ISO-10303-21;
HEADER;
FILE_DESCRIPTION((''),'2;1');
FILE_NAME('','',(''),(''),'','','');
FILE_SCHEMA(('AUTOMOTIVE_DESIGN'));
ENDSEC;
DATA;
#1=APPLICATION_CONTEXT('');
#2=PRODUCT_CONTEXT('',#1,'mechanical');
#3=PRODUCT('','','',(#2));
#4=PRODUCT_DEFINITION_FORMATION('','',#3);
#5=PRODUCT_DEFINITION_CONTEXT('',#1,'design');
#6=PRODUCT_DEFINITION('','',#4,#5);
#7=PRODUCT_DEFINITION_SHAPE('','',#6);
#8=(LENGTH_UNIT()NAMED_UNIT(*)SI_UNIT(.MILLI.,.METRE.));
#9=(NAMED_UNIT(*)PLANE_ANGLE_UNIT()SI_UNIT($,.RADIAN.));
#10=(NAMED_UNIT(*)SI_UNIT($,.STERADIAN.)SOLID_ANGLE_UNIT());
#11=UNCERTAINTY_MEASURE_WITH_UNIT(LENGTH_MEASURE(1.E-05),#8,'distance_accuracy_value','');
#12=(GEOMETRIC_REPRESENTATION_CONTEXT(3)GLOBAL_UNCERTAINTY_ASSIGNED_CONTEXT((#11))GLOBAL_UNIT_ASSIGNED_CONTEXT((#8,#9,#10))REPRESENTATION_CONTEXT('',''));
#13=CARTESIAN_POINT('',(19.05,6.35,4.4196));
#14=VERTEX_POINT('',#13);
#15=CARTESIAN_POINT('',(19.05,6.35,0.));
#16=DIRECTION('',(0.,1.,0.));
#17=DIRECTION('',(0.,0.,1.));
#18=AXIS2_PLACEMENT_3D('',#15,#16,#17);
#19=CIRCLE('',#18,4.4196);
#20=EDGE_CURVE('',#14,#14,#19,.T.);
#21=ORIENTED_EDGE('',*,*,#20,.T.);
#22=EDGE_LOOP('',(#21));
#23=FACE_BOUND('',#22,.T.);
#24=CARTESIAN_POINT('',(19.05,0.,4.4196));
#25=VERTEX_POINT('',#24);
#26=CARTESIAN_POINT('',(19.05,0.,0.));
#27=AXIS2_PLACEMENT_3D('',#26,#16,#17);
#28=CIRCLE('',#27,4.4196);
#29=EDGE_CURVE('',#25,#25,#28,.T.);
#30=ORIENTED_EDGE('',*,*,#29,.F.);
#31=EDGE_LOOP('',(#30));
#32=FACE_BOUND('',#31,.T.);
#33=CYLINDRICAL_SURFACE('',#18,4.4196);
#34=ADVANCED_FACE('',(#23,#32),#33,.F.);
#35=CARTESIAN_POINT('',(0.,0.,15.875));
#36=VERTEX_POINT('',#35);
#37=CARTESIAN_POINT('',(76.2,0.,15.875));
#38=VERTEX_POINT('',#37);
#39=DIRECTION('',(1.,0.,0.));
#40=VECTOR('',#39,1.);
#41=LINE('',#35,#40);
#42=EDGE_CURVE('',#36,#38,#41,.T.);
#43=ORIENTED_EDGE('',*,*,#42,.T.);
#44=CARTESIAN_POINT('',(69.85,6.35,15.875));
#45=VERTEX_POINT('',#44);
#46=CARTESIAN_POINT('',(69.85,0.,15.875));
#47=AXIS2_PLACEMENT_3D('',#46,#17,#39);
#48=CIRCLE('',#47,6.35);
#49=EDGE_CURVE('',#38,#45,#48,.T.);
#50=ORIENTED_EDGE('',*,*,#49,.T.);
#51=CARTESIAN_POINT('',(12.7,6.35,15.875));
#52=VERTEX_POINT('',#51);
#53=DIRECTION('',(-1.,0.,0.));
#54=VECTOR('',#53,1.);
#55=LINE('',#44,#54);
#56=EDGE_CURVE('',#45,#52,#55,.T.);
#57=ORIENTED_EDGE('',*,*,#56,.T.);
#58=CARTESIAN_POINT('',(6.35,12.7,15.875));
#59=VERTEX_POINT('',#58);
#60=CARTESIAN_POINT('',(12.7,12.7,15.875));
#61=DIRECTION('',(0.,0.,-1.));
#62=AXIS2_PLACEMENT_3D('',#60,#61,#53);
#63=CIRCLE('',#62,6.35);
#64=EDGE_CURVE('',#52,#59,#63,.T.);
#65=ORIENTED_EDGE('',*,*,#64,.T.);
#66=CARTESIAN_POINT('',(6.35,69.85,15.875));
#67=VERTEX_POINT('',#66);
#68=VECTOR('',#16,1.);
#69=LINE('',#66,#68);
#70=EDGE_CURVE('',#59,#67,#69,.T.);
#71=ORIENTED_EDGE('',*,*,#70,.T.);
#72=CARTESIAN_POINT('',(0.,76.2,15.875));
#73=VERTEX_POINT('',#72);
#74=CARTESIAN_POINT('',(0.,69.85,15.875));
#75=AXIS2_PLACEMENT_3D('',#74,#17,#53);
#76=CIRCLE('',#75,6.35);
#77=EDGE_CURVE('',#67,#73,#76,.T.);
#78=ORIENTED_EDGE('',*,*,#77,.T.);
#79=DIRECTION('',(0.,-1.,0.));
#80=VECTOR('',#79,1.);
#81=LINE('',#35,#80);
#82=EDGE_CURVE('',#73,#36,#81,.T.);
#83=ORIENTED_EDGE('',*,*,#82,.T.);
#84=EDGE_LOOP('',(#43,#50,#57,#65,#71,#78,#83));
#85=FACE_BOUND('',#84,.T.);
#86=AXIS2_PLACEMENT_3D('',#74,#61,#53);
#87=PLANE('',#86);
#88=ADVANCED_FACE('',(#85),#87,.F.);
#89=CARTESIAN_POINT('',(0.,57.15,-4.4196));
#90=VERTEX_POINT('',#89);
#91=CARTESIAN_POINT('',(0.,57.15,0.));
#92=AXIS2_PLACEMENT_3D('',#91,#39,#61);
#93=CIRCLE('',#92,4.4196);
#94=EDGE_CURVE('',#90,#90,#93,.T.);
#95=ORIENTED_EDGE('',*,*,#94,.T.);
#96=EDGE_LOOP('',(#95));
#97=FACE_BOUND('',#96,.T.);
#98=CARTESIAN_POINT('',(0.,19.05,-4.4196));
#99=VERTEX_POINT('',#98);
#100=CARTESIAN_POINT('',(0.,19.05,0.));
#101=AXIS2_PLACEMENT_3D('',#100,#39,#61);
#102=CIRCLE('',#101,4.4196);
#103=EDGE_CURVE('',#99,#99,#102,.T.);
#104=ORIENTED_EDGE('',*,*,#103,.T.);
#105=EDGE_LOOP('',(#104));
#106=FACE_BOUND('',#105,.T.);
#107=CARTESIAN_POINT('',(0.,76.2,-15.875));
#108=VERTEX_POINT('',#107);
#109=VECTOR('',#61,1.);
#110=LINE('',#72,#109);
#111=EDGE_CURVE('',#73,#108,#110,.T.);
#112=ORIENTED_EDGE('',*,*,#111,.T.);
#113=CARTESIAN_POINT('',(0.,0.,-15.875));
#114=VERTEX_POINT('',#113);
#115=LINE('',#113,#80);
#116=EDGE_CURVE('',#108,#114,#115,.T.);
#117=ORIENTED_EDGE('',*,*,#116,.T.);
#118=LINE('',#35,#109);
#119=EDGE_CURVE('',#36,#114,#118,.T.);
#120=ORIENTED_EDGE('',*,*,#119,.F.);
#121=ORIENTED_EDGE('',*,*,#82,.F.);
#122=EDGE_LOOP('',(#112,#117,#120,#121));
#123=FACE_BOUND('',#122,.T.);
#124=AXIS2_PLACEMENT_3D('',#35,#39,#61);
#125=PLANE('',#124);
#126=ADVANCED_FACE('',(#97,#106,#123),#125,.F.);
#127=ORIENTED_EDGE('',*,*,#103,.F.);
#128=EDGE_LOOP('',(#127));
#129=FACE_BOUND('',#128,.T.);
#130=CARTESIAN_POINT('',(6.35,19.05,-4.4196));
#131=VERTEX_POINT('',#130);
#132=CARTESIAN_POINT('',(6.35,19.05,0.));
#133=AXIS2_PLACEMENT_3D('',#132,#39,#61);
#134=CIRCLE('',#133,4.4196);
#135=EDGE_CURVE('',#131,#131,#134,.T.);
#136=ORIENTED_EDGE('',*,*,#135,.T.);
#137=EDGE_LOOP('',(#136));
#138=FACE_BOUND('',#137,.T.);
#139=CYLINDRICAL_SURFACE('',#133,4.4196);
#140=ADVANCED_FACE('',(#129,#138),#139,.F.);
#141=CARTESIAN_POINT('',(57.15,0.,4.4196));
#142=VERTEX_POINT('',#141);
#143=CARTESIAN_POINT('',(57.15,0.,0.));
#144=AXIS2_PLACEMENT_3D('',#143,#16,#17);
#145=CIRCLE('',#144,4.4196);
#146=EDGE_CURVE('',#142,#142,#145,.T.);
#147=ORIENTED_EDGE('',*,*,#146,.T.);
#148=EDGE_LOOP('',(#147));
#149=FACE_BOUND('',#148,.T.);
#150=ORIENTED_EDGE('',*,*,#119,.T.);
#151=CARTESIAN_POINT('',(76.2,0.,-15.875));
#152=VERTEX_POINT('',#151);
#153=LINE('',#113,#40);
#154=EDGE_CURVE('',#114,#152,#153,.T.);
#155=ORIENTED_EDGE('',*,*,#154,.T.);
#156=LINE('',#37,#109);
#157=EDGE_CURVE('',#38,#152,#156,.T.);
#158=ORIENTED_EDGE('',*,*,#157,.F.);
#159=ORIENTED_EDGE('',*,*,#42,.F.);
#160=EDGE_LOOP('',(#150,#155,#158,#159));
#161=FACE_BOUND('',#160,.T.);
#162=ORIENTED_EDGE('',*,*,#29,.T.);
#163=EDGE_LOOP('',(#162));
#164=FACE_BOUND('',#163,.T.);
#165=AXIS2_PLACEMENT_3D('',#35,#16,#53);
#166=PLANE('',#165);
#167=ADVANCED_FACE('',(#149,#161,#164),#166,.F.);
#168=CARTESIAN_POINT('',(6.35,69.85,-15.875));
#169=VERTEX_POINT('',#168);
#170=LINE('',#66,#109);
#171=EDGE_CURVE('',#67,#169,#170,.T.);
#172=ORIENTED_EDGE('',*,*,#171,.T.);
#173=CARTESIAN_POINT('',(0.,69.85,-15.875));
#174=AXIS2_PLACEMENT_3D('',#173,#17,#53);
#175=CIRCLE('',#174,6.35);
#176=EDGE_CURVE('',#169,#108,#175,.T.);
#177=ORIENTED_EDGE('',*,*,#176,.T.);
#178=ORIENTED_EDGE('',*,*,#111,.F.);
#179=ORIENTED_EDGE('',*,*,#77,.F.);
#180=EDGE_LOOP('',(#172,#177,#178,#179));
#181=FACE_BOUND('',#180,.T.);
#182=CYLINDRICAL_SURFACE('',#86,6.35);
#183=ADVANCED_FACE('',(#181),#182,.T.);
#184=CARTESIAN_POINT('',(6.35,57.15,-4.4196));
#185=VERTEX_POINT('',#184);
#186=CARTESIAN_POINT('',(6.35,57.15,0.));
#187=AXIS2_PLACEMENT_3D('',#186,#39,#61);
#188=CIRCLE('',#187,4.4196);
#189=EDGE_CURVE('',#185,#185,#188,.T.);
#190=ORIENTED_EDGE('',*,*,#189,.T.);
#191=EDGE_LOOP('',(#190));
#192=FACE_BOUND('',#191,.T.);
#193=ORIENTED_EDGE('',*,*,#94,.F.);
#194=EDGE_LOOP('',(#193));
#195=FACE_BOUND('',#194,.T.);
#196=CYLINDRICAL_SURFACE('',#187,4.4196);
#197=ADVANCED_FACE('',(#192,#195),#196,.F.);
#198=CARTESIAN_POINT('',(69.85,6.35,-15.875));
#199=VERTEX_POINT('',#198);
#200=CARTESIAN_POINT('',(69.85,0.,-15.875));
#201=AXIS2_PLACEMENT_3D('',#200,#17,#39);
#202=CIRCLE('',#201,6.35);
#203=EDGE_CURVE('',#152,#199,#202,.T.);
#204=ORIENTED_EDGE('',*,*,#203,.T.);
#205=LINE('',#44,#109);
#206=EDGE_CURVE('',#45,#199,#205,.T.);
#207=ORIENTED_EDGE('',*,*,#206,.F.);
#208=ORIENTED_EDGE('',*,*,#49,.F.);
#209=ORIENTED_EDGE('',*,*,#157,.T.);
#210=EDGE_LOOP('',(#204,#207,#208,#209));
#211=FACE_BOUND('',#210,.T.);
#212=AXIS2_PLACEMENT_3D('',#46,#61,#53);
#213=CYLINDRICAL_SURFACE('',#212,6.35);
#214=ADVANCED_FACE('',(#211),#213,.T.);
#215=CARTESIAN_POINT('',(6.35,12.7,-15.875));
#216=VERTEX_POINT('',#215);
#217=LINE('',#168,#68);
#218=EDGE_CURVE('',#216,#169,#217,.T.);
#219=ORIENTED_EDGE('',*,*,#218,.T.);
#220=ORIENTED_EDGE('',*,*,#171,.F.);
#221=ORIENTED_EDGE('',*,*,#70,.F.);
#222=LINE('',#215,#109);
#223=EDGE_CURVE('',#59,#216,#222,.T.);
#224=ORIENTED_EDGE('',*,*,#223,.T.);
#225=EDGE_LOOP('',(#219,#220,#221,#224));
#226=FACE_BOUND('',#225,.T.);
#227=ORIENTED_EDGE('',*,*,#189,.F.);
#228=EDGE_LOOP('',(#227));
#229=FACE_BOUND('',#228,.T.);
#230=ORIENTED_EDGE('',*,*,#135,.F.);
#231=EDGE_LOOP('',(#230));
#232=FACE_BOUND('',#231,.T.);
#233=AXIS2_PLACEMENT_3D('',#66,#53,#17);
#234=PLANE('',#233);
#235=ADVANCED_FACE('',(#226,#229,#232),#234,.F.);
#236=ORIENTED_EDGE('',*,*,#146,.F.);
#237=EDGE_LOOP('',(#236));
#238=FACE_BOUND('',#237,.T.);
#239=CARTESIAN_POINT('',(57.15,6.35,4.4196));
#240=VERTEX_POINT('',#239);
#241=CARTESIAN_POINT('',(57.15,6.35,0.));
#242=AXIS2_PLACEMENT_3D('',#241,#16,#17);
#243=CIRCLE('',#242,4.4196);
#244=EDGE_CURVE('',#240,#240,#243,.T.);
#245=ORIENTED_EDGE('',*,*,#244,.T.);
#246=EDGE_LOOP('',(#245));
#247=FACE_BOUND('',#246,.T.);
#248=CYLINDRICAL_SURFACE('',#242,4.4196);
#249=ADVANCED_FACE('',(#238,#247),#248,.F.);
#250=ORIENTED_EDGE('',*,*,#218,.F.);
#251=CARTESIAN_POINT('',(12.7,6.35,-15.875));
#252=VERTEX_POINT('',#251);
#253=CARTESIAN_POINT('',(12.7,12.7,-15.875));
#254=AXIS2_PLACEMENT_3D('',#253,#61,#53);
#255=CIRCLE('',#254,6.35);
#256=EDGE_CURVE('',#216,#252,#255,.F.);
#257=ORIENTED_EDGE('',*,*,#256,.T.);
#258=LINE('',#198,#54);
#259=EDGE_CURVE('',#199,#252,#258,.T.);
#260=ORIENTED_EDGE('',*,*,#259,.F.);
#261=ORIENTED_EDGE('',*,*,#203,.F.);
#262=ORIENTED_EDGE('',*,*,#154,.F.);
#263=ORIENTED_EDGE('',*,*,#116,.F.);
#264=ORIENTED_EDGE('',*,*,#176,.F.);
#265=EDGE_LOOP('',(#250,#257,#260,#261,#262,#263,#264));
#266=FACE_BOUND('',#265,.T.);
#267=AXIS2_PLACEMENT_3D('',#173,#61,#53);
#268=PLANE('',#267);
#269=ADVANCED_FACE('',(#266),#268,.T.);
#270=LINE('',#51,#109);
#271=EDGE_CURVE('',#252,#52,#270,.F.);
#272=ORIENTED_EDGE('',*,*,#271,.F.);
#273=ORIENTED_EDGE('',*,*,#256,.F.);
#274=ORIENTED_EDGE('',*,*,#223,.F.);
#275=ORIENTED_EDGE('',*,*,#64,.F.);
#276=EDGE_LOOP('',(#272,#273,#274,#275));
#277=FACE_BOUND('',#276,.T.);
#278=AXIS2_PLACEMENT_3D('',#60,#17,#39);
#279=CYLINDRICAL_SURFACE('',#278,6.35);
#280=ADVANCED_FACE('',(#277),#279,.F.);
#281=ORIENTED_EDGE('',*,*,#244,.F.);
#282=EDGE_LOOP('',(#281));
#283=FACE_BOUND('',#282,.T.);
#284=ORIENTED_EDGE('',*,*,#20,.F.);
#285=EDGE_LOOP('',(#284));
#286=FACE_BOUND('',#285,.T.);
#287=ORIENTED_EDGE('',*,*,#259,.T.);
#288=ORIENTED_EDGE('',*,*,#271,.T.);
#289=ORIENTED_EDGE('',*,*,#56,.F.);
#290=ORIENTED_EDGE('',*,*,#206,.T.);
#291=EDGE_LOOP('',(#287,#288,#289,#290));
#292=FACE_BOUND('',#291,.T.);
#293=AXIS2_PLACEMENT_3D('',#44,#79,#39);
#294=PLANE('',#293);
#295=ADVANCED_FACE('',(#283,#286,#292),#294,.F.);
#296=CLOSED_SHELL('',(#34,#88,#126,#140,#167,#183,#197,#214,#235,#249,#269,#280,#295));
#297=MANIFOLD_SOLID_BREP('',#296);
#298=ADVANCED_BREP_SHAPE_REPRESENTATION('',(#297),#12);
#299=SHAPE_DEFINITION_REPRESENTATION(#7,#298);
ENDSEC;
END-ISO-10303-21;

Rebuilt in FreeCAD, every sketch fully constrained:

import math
import FreeCAD as App
import Part
import Sketcher

V = App.Vector
Q = App.Units.Quantity


def edges_at(feature, points):
    """Names of the edges that pass closest to the given points."""
    edges = feature.Shape.Edges
    near = lambda p: min(range(len(edges)), key=lambda i: edges[i].distToShape(Part.Vertex(*p))[0])
    return sorted({f"Edge{near(p) + 1}" for p in points})

doc = App.newDocument("Part")
params = doc.addObject("Spreadsheet::Sheet", "Params")
for row, (alias, value) in enumerate([
    ("sketch1_width", "3 in"),
    ("sketch1_radius", "0.25 in"),
    ("pad1_length", "1.25 in"),
    ("sketch2_diameter", "0.348 in"),
    ("hole_diameter", "0.348 in"),
    ("sketch3_diameter", "0.348 in"),
    ("hole2_diameter", "0.348 in"),
    ("fillet_radius", "0.25 in"),
], start=1):
    params.set(f"A{row}", alias)
    params.set(f"B{row}", "=" + value)
    params.setAlias(f"B{row}", alias)

body = doc.addObject("PartDesign::Body", "Body")

# Sketch on XY plane
sketch1 = body.newObject("Sketcher::SketchObject", "Sketch")
sketch1.AttachmentSupport = (doc.getObject("XY_Plane"), [""])
sketch1.MapMode = "FlatFace"
sketch1.addGeometry(Part.LineSegment(V(0, 0, 0), V(76, 0, 0)), False)
sketch1.addGeometry(Part.ArcOfCircle(Part.Circle(V(70, 0, 0), V(0, 0, 1), 6), math.radians(0), math.radians(90)), False)
sketch1.addGeometry(Part.LineSegment(V(70, 6, 0), V(6, 6, 0)), False)
sketch1.addGeometry(Part.LineSegment(V(6, 6, 0), V(6, 70, 0)), False)
sketch1.addGeometry(Part.ArcOfCircle(Part.Circle(V(0, 70, 0), V(0, 0, 1), 6), math.radians(0), math.radians(90)), False)
sketch1.addGeometry(Part.LineSegment(V(0, 76, 0), V(0, 0, 0)), False)
sketch1.addConstraint(Sketcher.Constraint("Coincident", 0, 2, 1, 1))
sketch1.addConstraint(Sketcher.Constraint("Tangent", 1, 2, 2, 1))
sketch1.addConstraint(Sketcher.Constraint("Coincident", 2, 2, 3, 1))
sketch1.addConstraint(Sketcher.Constraint("Tangent", 3, 2, 4, 1))
sketch1.addConstraint(Sketcher.Constraint("Coincident", 4, 2, 5, 1))
sketch1.addConstraint(Sketcher.Constraint("Coincident", 5, 2, 0, 1))
sketch1.addConstraint(Sketcher.Constraint("Horizontal", 0))
sketch1.addConstraint(Sketcher.Constraint("Horizontal", 2))
sketch1.addConstraint(Sketcher.Constraint("Vertical", 3))
sketch1.addConstraint(Sketcher.Constraint("Vertical", 5))
sketch1.addConstraint(Sketcher.Constraint("Coincident", 5, 2, -1, 1))
sketch1.addConstraint(Sketcher.Constraint("Equal", 1, 4))
sketch1.addConstraint(Sketcher.Constraint("PointOnObject", 1, 3, -1))
sketch1.addConstraint(Sketcher.Constraint("PointOnObject", 4, 3, -2))
sketch1.addConstraint(Sketcher.Constraint("Equal", 2, 3))
sketch1.addConstraint(Sketcher.Constraint("DistanceX", 0, 1, 0, 2, Q("3 in")))
sketch1.addConstraint(Sketcher.Constraint("Radius", 1, Q("0.25 in")))
sketch1.setExpression("Constraints[15]", "Params.sketch1_width")
sketch1.setExpression("Constraints[16]", "Params.sketch1_radius")
pad1 = body.newObject("PartDesign::Pad", "Pad")
pad1.Profile = sketch1
pad1.setExpression("Length", "Params.pad1_length")
pad1.Midplane = True

# Sketch on YZ plane
sketch2 = body.newObject("Sketcher::SketchObject", "Sketch001")
sketch2.AttachmentSupport = (doc.getObject("YZ_Plane"), [""])
sketch2.MapMode = "FlatFace"
sketch2.AttachmentOffset = App.Placement(V(0, 0, 0.25 * 25.4), App.Rotation())
sketch2.addGeometry(Part.Circle(V(57.1, 0, 0), V(0, 0, 1), 4.4), False)
sketch2.addGeometry(Part.Circle(V(19.1, 0, 0), V(0, 0, 1), 4.4), False)
sketch2.addConstraint(Sketcher.Constraint("Equal", 0, 1))
sketch2.addConstraint(Sketcher.Constraint("PointOnObject", 0, 3, -1))
sketch2.addConstraint(Sketcher.Constraint("PointOnObject", 1, 3, -1))
sketch2.addConstraint(Sketcher.Constraint("Diameter", 0, Q("0.348 in")))
sketch2.addConstraint(Sketcher.Constraint("DistanceX", 1, 3, 0, 3, Q("1.5 in")))
sketch2.addConstraint(Sketcher.Constraint("DistanceX", -1, 1, 0, 3, Q("2.25 in")))
sketch2.setExpression("Constraints[3]", "Params.sketch2_diameter")
doc.recompute()
hole = body.newObject("PartDesign::Hole", "Hole")
hole.Profile = sketch2
hole.ThreadType = "None"
hole.setExpression("Diameter", "Params.hole_diameter")
hole.DepthType = "ThroughAll"

# Sketch on XZ plane
sketch3 = body.newObject("Sketcher::SketchObject", "Sketch002")
sketch3.AttachmentSupport = (doc.getObject("XZ_Plane"), [""])
sketch3.MapMode = "FlatFace"
sketch3.AttachmentOffset = App.Placement(V(0, 0, -0.25 * 25.4), App.Rotation())
sketch3.addGeometry(Part.Circle(V(19.1, 0, 0), V(0, 0, 1), 4.4), False)
sketch3.addGeometry(Part.Circle(V(57.1, 0, 0), V(0, 0, 1), 4.4), False)
sketch3.addConstraint(Sketcher.Constraint("Equal", 0, 1))
sketch3.addConstraint(Sketcher.Constraint("PointOnObject", 0, 3, -1))
sketch3.addConstraint(Sketcher.Constraint("PointOnObject", 1, 3, -1))
sketch3.addConstraint(Sketcher.Constraint("Diameter", 0, Q("0.348 in")))
sketch3.addConstraint(Sketcher.Constraint("DistanceX", 0, 3, 1, 3, Q("1.5 in")))
sketch3.addConstraint(Sketcher.Constraint("DistanceX", -1, 1, 0, 3, Q("0.75 in")))
sketch3.setExpression("Constraints[3]", "Params.sketch3_diameter")
doc.recompute()
hole2 = body.newObject("PartDesign::Hole", "Hole001")
hole2.Profile = sketch3
hole2.ThreadType = "None"
hole2.setExpression("Diameter", "Params.hole2_diameter")
hole2.DepthType = "ThroughAll"
hole2.Reversed = True
doc.recompute()

fillet = body.newObject("PartDesign::Fillet", "Fillet")
fillet.Base = (hole2, edges_at(hole2, [(6.35, 6.35, 0)]))
fillet.setExpression("Radius", "Params.fillet_radius")

doc.recompute()
